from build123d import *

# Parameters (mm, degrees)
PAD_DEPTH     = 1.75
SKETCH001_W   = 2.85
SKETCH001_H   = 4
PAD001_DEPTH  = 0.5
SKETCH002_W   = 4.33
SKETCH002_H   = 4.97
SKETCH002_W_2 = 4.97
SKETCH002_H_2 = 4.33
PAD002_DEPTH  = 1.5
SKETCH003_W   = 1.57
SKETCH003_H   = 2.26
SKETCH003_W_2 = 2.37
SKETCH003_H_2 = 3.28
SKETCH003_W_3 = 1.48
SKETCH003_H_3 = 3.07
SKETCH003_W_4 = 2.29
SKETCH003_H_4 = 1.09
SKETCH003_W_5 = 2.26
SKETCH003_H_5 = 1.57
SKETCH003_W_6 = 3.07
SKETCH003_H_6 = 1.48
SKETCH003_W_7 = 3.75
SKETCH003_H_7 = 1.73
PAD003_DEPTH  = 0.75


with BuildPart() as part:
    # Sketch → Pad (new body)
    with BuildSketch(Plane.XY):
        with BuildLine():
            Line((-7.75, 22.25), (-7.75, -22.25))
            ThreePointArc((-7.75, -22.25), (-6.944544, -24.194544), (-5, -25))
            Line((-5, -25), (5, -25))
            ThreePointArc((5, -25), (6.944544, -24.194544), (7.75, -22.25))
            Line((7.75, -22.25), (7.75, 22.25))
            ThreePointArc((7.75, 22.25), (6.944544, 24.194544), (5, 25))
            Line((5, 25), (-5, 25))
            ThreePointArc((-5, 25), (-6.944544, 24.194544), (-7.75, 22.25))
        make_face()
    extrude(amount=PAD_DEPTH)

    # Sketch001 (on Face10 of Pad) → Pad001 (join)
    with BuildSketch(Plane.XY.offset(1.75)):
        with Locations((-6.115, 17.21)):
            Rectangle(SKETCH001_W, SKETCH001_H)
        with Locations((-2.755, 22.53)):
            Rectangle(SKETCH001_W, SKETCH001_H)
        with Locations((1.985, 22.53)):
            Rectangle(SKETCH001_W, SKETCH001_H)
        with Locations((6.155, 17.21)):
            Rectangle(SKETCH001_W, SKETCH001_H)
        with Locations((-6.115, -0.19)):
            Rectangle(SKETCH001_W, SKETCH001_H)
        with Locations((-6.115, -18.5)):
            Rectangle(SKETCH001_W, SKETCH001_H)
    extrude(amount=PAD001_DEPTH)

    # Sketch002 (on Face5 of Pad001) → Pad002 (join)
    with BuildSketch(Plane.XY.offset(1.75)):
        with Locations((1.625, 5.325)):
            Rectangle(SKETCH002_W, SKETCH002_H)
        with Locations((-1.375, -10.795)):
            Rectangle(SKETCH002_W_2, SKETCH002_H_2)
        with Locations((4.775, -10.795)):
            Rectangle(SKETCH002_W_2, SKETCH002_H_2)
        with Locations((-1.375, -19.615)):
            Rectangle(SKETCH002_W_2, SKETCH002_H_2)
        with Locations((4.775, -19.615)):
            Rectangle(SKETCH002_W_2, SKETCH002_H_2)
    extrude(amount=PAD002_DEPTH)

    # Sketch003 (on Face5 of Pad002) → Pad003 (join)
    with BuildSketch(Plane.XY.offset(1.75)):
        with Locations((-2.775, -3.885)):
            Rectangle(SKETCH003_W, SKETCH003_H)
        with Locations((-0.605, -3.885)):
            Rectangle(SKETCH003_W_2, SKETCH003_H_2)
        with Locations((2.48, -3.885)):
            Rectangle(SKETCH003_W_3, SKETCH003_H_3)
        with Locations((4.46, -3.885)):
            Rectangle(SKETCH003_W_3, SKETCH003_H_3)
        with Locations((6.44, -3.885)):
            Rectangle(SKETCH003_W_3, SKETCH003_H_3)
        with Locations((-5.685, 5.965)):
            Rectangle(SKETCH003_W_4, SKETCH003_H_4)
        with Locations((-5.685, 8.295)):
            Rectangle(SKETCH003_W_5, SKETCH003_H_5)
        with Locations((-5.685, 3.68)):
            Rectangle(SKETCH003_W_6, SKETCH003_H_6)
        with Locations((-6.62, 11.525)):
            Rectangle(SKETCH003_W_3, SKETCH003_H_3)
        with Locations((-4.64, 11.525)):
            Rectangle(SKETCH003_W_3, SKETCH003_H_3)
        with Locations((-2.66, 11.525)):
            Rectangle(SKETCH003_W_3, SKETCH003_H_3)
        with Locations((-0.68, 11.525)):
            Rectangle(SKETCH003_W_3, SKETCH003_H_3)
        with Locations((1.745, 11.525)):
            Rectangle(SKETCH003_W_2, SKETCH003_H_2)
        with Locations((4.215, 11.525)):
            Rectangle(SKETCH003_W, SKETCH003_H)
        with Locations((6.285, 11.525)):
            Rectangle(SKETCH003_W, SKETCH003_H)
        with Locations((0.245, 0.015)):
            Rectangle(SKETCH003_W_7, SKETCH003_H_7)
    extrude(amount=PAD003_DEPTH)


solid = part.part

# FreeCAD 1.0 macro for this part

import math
import FreeCAD as App
import Part
import Sketcher

V = App.Vector
Q = App.Units.Quantity


def add_polygon(sketch, points):
    """Adds a closed chain of lines whose ends are joined by coincident constraints."""
    first, n = sketch.GeometryCount, len(points)
    for a, b in zip(points, points[1:] + points[:1]):
        sketch.addGeometry(Part.LineSegment(App.Vector(*a, 0), App.Vector(*b, 0)), False)
    for i in range(n):
        sketch.addConstraint(Sketcher.Constraint("Coincident", first + i, 2, first + (i + 1) % n, 1))

doc = App.newDocument("Part")
body = doc.addObject("PartDesign::Body", "Body")

# Sketch on XY plane
sketch1 = body.newObject("Sketcher::SketchObject", "Sketch")
sketch1.AttachmentSupport = (doc.getObject("XY_Plane"), [""])
sketch1.MapMode = "FlatFace"
sketch1.addGeometry([
    Part.LineSegment(V(-7.75, 22.25, 0), V(-7.75, -22.25, 0)),  # 0
    Part.ArcOfCircle(Part.Circle(V(-5.000001, -22.250001, 0), V(0, 0, 1), 2.749999), math.radians(179.999975), math.radians(270.000025)),  # 1
    Part.LineSegment(V(-5, -25, 0), V(5, -25, 0)),  # 2
    Part.ArcOfCircle(Part.Circle(V(5.000001, -22.250001, 0), V(0, 0, 1), 2.749999), math.radians(-90.000025), math.radians(0.000025)),  # 3
    Part.LineSegment(V(7.75, -22.25, 0), V(7.75, 22.25, 0)),  # 4
    Part.ArcOfCircle(Part.Circle(V(5.000001, 22.250001, 0), V(0, 0, 1), 2.749999), math.radians(-0.000025), math.radians(90.000025)),  # 5
    Part.LineSegment(V(5, 25, 0), V(-5, 25, 0)),  # 6
    Part.ArcOfCircle(Part.Circle(V(-5.000001, 22.250001, 0), V(0, 0, 1), 2.749999), math.radians(89.999975), math.radians(180.000025)),  # 7
], False)
sketch1.addConstraint([
    Sketcher.Constraint("Tangent", 0, 2, 1, 1),
    Sketcher.Constraint("Tangent", 1, 2, 2, 1),
    Sketcher.Constraint("Tangent", 2, 2, 3, 1),
    Sketcher.Constraint("Tangent", 3, 2, 4, 1),
    Sketcher.Constraint("Tangent", 4, 2, 5, 1),
    Sketcher.Constraint("Tangent", 5, 2, 6, 1),
    Sketcher.Constraint("Tangent", 6, 2, 7, 1),
    Sketcher.Constraint("Tangent", 7, 2, 0, 1),
    Sketcher.Constraint("Vertical", 0),
    Sketcher.Constraint("Horizontal", 2),
    Sketcher.Constraint("Vertical", 4),
    Sketcher.Constraint("Horizontal", 6),
    Sketcher.Constraint("Equal", 1, 3),
    Sketcher.Constraint("Equal", 3, 5),
    Sketcher.Constraint("Equal", 5, 7),
    Sketcher.Constraint("Symmetric", 1, 3, 5, 3, -1, 1),
    Sketcher.Constraint("DistanceX", 2, 1, 2, 2, Q("10 mm")),
    Sketcher.Constraint("Radius", 1, Q("2.749999 mm")),
    Sketcher.Constraint("DistanceY", 0, 2, 0, 1, Q("44.5 mm")),
])
pad1 = body.newObject("PartDesign::Pad", "Pad")
pad1.Profile = sketch1
pad1.Length = 1.75

# Sketch on XY plane
sketch2 = body.newObject("Sketcher::SketchObject", "Sketch001")
sketch2.AttachmentSupport = (doc.getObject("XY_Plane"), [""])
sketch2.MapMode = "FlatFace"
sketch2.AttachmentOffset = App.Placement(V(0, 0, 1.75), App.Rotation())
add_polygon(sketch2, [(-7.54, 19.21), (-7.54, 15.21), (-4.69, 15.21), (-4.69, 19.21)])  # lines 0-3
add_polygon(sketch2, [(-4.18, 24.53), (-4.18, 20.53), (-1.33, 20.53), (-1.33, 24.53)])  # lines 4-7
add_polygon(sketch2, [(0.56, 24.53), (0.56, 20.53), (3.41, 20.53), (3.41, 24.53)])  # lines 8-11
add_polygon(sketch2, [(4.73, 19.21), (4.73, 15.21), (7.58, 15.21), (7.58, 19.21)])  # lines 12-15
add_polygon(sketch2, [(-7.54, 1.81), (-7.54, -2.19), (-4.69, -2.19), (-4.69, 1.81)])  # lines 16-19
add_polygon(sketch2, [(-7.54, -16.5), (-7.54, -20.5), (-4.69, -20.5), (-4.69, -16.5)])  # lines 20-23
sketch2.addConstraint([
    Sketcher.Constraint("Vertical", 0),
    Sketcher.Constraint("Horizontal", 1),
    Sketcher.Constraint("Vertical", 2),
    Sketcher.Constraint("Horizontal", 3),
    Sketcher.Constraint("Vertical", 4),
    Sketcher.Constraint("Horizontal", 5),
    Sketcher.Constraint("Vertical", 6),
    Sketcher.Constraint("Horizontal", 7),
    Sketcher.Constraint("Vertical", 8),
    Sketcher.Constraint("Horizontal", 9),
    Sketcher.Constraint("Vertical", 10),
    Sketcher.Constraint("Horizontal", 11),
    Sketcher.Constraint("Vertical", 12),
    Sketcher.Constraint("Horizontal", 13),
    Sketcher.Constraint("Vertical", 14),
    Sketcher.Constraint("Horizontal", 15),
    Sketcher.Constraint("Vertical", 16),
    Sketcher.Constraint("Horizontal", 17),
    Sketcher.Constraint("Vertical", 18),
    Sketcher.Constraint("Horizontal", 19),
    Sketcher.Constraint("Vertical", 20),
    Sketcher.Constraint("Horizontal", 21),
    Sketcher.Constraint("Vertical", 22),
    Sketcher.Constraint("Horizontal", 23),
    Sketcher.Constraint("Horizontal", 5, 2, 8, 2),
    Sketcher.Constraint("Horizontal", 7, 2, 10, 2),
    Sketcher.Constraint("Horizontal", 1, 2, 12, 2),
    Sketcher.Constraint("Horizontal", 3, 2, 14, 2),
    Sketcher.Constraint("Vertical", 3, 2, 16, 2),
    Sketcher.Constraint("Vertical", 2, 2, 17, 2),
    Sketcher.Constraint("Vertical", 19, 2, 20, 2),
    Sketcher.Constraint("Vertical", 18, 2, 21, 2),
    Sketcher.Constraint("Equal", 3, 5),
    Sketcher.Constraint("Equal", 7, 9),
    Sketcher.Constraint("Equal", 11, 13),
    Sketcher.Constraint("Equal", 2, 4),
    Sketcher.Constraint("Equal", 14, 16),
    Sketcher.Constraint("Equal", 18, 20),
    Sketcher.Constraint("DistanceY", 0, 2, 0, 1, Q("4 mm")),
    Sketcher.Constraint("DistanceX", 1, 1, 1, 2, Q("2.85 mm")),
    Sketcher.Constraint("DistanceY", 20, 2, -1, 1, Q("20.5 mm")),
    Sketcher.Constraint("DistanceX", 2, 2, 9, 2, Q("8.1 mm")),
    Sketcher.Constraint("DistanceY", 16, 2, 0, 2, Q("17.4 mm")),
    Sketcher.Constraint("DistanceX", 0, 2, -1, 1, Q("7.54 mm")),
    Sketcher.Constraint("DistanceY", -1, 1, 0, 2, Q("15.21 mm")),
    Sketcher.Constraint("DistanceX", 4, 2, -1, 1, Q("4.18 mm")),
    Sketcher.Constraint("DistanceY", -1, 1, 4, 2, Q("20.53 mm")),
    Sketcher.Constraint("DistanceX", -1, 1, 12, 2, Q("4.73 mm")),
])
pad2 = body.newObject("PartDesign::Pad", "Pad001")
pad2.Profile = sketch2
pad2.Length = 0.5

# Sketch on XY plane
sketch3 = body.newObject("Sketcher::SketchObject", "Sketch002")
sketch3.AttachmentSupport = (doc.getObject("XY_Plane"), [""])
sketch3.MapMode = "FlatFace"
sketch3.AttachmentOffset = App.Placement(V(0, 0, 1.75), App.Rotation())
add_polygon(sketch3, [(-0.54, 7.81), (-0.54, 2.84), (3.79, 2.84), (3.79, 7.81)])  # lines 0-3
add_polygon(sketch3, [(-3.86, -8.63), (-3.86, -12.96), (1.11, -12.96), (1.11, -8.63)])  # lines 4-7
add_polygon(sketch3, [(2.29, -8.63), (2.29, -12.96), (7.26, -12.96), (7.26, -8.63)])  # lines 8-11
add_polygon(sketch3, [(-3.86, -17.45), (-3.86, -21.78), (1.11, -21.78), (1.11, -17.45)])  # lines 12-15
add_polygon(sketch3, [(2.29, -17.45), (2.29, -21.78), (7.26, -21.78), (7.26, -17.45)])  # lines 16-19
sketch3.addConstraint([
    Sketcher.Constraint("Vertical", 0),
    Sketcher.Constraint("Horizontal", 1),
    Sketcher.Constraint("Vertical", 2),
    Sketcher.Constraint("Horizontal", 3),
    Sketcher.Constraint("Vertical", 4),
    Sketcher.Constraint("Horizontal", 5),
    Sketcher.Constraint("Vertical", 6),
    Sketcher.Constraint("Horizontal", 7),
    Sketcher.Constraint("Vertical", 8),
    Sketcher.Constraint("Horizontal", 9),
    Sketcher.Constraint("Vertical", 10),
    Sketcher.Constraint("Horizontal", 11),
    Sketcher.Constraint("Vertical", 12),
    Sketcher.Constraint("Horizontal", 13),
    Sketcher.Constraint("Vertical", 14),
    Sketcher.Constraint("Horizontal", 15),
    Sketcher.Constraint("Vertical", 16),
    Sketcher.Constraint("Horizontal", 17),
    Sketcher.Constraint("Vertical", 18),
    Sketcher.Constraint("Horizontal", 19),
    Sketcher.Constraint("Horizontal", 5, 2, 8, 2),
    Sketcher.Constraint("Horizontal", 7, 2, 10, 2),
    Sketcher.Constraint("Horizontal", 13, 2, 16, 2),
    Sketcher.Constraint("Horizontal", 15, 2, 18, 2),
    Sketcher.Constraint("Vertical", 7, 2, 12, 2),
    Sketcher.Constraint("Vertical", 6, 2, 13, 2),
    Sketcher.Constraint("Vertical", 11, 2, 16, 2),
    Sketcher.Constraint("Vertical", 10, 2, 17, 2),
    Sketcher.Constraint("Equal", 7, 9),
    Sketcher.Constraint("Equal", 19, 0),
    Sketcher.Constraint("Equal", 3, 4),
    Sketcher.Constraint("Equal", 10, 12),
    Sketcher.Constraint("DistanceX", 1, 1, 1, 2, Q("4.33 mm")),
    Sketcher.Constraint("DistanceX", 5, 1, 5, 2, Q("4.97 mm")),
    Sketcher.Constraint("DistanceY", 4, 2, 0, 2, Q("15.8 mm")),
    Sketcher.Constraint("DistanceX", 8, 2, 1, 2, Q("1.5 mm")),
    Sketcher.Constraint("DistanceX", 0, 2, -1, 1, Q("0.54 mm")),
    Sketcher.Constraint("DistanceY", -1, 1, 0, 2, Q("2.84 mm")),
    Sketcher.Constraint("DistanceX", 4, 2, -1, 1, Q("3.86 mm")),
    Sketcher.Constraint("DistanceY", 12, 2, -1, 1, Q("21.78 mm")),
])
pad3 = body.newObject("PartDesign::Pad", "Pad002")
pad3.Profile = sketch3
pad3.Length = 1.5

# Sketch on XY plane
sketch4 = body.newObject("Sketcher::SketchObject", "Sketch003")
sketch4.AttachmentSupport = (doc.getObject("XY_Plane"), [""])
sketch4.MapMode = "FlatFace"
sketch4.AttachmentOffset = App.Placement(V(0, 0, 1.75), App.Rotation())
add_polygon(sketch4, [(-3.56, -2.755), (-3.56, -5.015), (-1.99, -5.015), (-1.99, -2.755)])  # lines 0-3
add_polygon(sketch4, [(-1.79, -2.245), (-1.79, -5.525), (0.58, -5.525), (0.58, -2.245)])  # lines 4-7
add_polygon(sketch4, [(1.74, -2.35), (1.74, -5.42), (3.22, -5.42), (3.22, -2.35)])  # lines 8-11
add_polygon(sketch4, [(3.72, -2.35), (3.72, -5.42), (5.2, -5.42), (5.2, -2.35)])  # lines 12-15
add_polygon(sketch4, [(5.7, -2.35), (5.7, -5.42), (7.18, -5.42), (7.18, -2.35)])  # lines 16-19
add_polygon(sketch4, [(-6.83, 6.51), (-6.83, 5.42), (-4.54, 5.42), (-4.54, 6.51)])  # lines 20-23
add_polygon(sketch4, [(-6.815, 9.08), (-6.815, 7.51), (-4.555, 7.51), (-4.555, 9.08)])  # lines 24-27
add_polygon(sketch4, [(-7.22, 4.42), (-7.22, 2.94), (-4.15, 2.94), (-4.15, 4.42)])  # lines 28-31
add_polygon(sketch4, [(-7.36, 13.06), (-7.36, 9.99), (-5.88, 9.99), (-5.88, 13.06)])  # lines 32-35
add_polygon(sketch4, [(-5.38, 13.06), (-5.38, 9.99), (-3.9, 9.99), (-3.9, 13.06)])  # lines 36-39
add_polygon(sketch4, [(-3.4, 13.06), (-3.4, 9.99), (-1.92, 9.99), (-1.92, 13.06)])  # lines 40-43
add_polygon(sketch4, [(-1.42, 13.06), (-1.42, 9.99), (0.06, 9.99), (0.06, 13.06)])  # lines 44-47
add_polygon(sketch4, [(0.56, 13.165), (0.56, 9.885), (2.93, 9.885), (2.93, 13.165)])  # lines 48-51
add_polygon(sketch4, [(3.43, 12.655), (3.43, 10.395), (5, 10.395), (5, 12.655)])  # lines 52-55
add_polygon(sketch4, [(5.5, 12.655), (5.5, 10.395), (7.07, 10.395), (7.07, 12.655)])  # lines 56-59
add_polygon(sketch4, [(-1.63, 0.88), (-1.63, -0.85), (2.12, -0.85), (2.12, 0.88)])  # lines 60-63
sketch4.addConstraint([
    Sketcher.Constraint("Vertical", 0),
    Sketcher.Constraint("Horizontal", 1),
    Sketcher.Constraint("Vertical", 2),
    Sketcher.Constraint("Horizontal", 3),
    Sketcher.Constraint("Vertical", 4),
    Sketcher.Constraint("Horizontal", 5),
    Sketcher.Constraint("Vertical", 6),
    Sketcher.Constraint("Horizontal", 7),
    Sketcher.Constraint("Vertical", 8),
    Sketcher.Constraint("Horizontal", 9),
    Sketcher.Constraint("Vertical", 10),
    Sketcher.Constraint("Horizontal", 11),
    Sketcher.Constraint("Vertical", 12),
    Sketcher.Constraint("Horizontal", 13),
    Sketcher.Constraint("Vertical", 14),
    Sketcher.Constraint("Horizontal", 15),
    Sketcher.Constraint("Vertical", 16),
    Sketcher.Constraint("Horizontal", 17),
    Sketcher.Constraint("Vertical", 18),
    Sketcher.Constraint("Horizontal", 19),
    Sketcher.Constraint("Vertical", 20),
    Sketcher.Constraint("Horizontal", 21),
    Sketcher.Constraint("Vertical", 22),
    Sketcher.Constraint("Horizontal", 23),
    Sketcher.Constraint("Vertical", 24),
    Sketcher.Constraint("Horizontal", 25),
    Sketcher.Constraint("Vertical", 26),
    Sketcher.Constraint("Horizontal", 27),
    Sketcher.Constraint("Vertical", 28),
    Sketcher.Constraint("Horizontal", 29),
    Sketcher.Constraint("Vertical", 30),
    Sketcher.Constraint("Horizontal", 31),
    Sketcher.Constraint("Vertical", 32),
    Sketcher.Constraint("Horizontal", 33),
    Sketcher.Constraint("Vertical", 34),
    Sketcher.Constraint("Horizontal", 35),
    Sketcher.Constraint("Vertical", 36),
    Sketcher.Constraint("Horizontal", 37),
    Sketcher.Constraint("Vertical", 38),
    Sketcher.Constraint("Horizontal", 39),
    Sketcher.Constraint("Vertical", 40),
    Sketcher.Constraint("Horizontal", 41),
    Sketcher.Constraint("Vertical", 42),
    Sketcher.Constraint("Horizontal", 43),
    Sketcher.Constraint("Vertical", 44),
    Sketcher.Constraint("Horizontal", 45),
    Sketcher.Constraint("Vertical", 46),
    Sketcher.Constraint("Horizontal", 47),
    Sketcher.Constraint("Vertical", 48),
    Sketcher.Constraint("Horizontal", 49),
    Sketcher.Constraint("Vertical", 50),
    Sketcher.Constraint("Horizontal", 51),
    Sketcher.Constraint("Vertical", 52),
    Sketcher.Constraint("Horizontal", 53),
    Sketcher.Constraint("Vertical", 54),
    Sketcher.Constraint("Horizontal", 55),
    Sketcher.Constraint("Vertical", 56),
    Sketcher.Constraint("Horizontal", 57),
    Sketcher.Constraint("Vertical", 58),
    Sketcher.Constraint("Horizontal", 59),
    Sketcher.Constraint("Vertical", 60),
    Sketcher.Constraint("Horizontal", 61),
    Sketcher.Constraint("Vertical", 62),
    Sketcher.Constraint("Horizontal", 63),
    Sketcher.Constraint("Horizontal", 9, 2, 12, 2),
    Sketcher.Constraint("Horizontal", 11, 2, 14, 2),
    Sketcher.Constraint("Horizontal", 13, 2, 16, 2),
    Sketcher.Constraint("Horizontal", 15, 2, 18, 2),
    Sketcher.Constraint("Horizontal", 33, 2, 36, 2),
    Sketcher.Constraint("Horizontal", 35, 2, 38, 2),
    Sketcher.Constraint("Horizontal", 37, 2, 40, 2),
    Sketcher.Constraint("Horizontal", 39, 2, 42, 2),
    Sketcher.Constraint("Horizontal", 41, 2, 44, 2),
    Sketcher.Constraint("Horizontal", 43, 2, 46, 2),
    Sketcher.Constraint("Horizontal", 53, 2, 56, 2),
    Sketcher.Constraint("Horizontal", 55, 2, 58, 2),
    Sketcher.Constraint("Equal", 11, 13),
    Sketcher.Constraint("Equal", 15, 17),
    Sketcher.Constraint("Equal", 19, 33),
    Sketcher.Constraint("Equal", 35, 37),
    Sketcher.Constraint("Equal", 39, 41),
    Sketcher.Constraint("Equal", 43, 45),
    Sketcher.Constraint("Equal", 7, 49),
    Sketcher.Constraint("Equal", 3, 53),
    Sketcher.Constraint("Equal", 55, 57),
    Sketcher.Constraint("Equal", 27, 0),
    Sketcher.Constraint("Equal", 31, 8),
    Sketcher.Constraint("Equal", 59, 24),
    Sketcher.Constraint("Equal", 47, 28),
    Sketcher.Constraint("Equal", 18, 32),
    Sketcher.Constraint("Equal", 6, 48),
    Sketcher.Constraint("Equal", 2, 52),
    Sketcher.Constraint("DistanceX", -1, 1, 53, 2, Q("5 mm")),
    Sketcher.Constraint("DistanceX", 1, 1, 1, 2, Q("1.57 mm")),
    Sketcher.Constraint("DistanceX", 5, 1, 5, 2, Q("2.37 mm")),
    Sketcher.Constraint("DistanceX", 9, 1, 9, 2, Q("1.48 mm")),
    Sketcher.Constraint("DistanceX", 21, 1, 21, 2, Q("2.29 mm")),
    Sketcher.Constraint("DistanceX", 25, 1, 25, 2, Q("2.26 mm")),
    Sketcher.Constraint("DistanceX", 29, 1, 29, 2, Q("3.07 mm")),
    Sketcher.Constraint("DistanceX", 61, 1, 61, 2, Q("3.75 mm")),
    Sketcher.Constraint("DistanceY", 4, 2, 4, 1, Q("3.28 mm")),
    Sketcher.Constraint("DistanceY", 20, 2, 20, 1, Q("1.09 mm")),
    Sketcher.Constraint("DistanceY", 60, 2, 60, 1, Q("1.73 mm")),
    Sketcher.Constraint("DistanceX", -1, 1, 13, 2, Q("5.2 mm")),
    Sketcher.Constraint("DistanceX", -1, 1, 16, 2, Q("5.7 mm")),
    Sketcher.Constraint("DistanceX", 37, 2, -1, 1, Q("3.9 mm")),
    Sketcher.Constraint("DistanceX", 40, 2, -1, 1, Q("3.4 mm")),
    Sketcher.Constraint("DistanceX", -1, 1, 56, 2, Q("5.5 mm")),
    Sketcher.Constraint("DistanceX", 0, 2, -1, 1, Q("3.56 mm")),
    Sketcher.Constraint("DistanceX", 4, 2, -1, 1, Q("1.79 mm")),
    Sketcher.Constraint("DistanceX", -1, 1, 8, 2, Q("1.74 mm")),
    Sketcher.Constraint("DistanceY", 8, 2, -1, 1, Q("5.42 mm")),
    Sketcher.Constraint("DistanceX", 20, 2, -1, 1, Q("6.83 mm")),
    Sketcher.Constraint("DistanceY", -1, 1, 20, 2, Q("5.42 mm")),
    Sketcher.Constraint("DistanceY", -1, 1, 24, 2, Q("7.51 mm")),
    Sketcher.Constraint("DistanceX", 28, 2, -1, 1, Q("7.22 mm")),
    Sketcher.Constraint("DistanceY", -1, 1, 28, 2, Q("2.94 mm")),
    Sketcher.Constraint("DistanceX", 32, 2, -1, 1, Q("7.36 mm")),
    Sketcher.Constraint("DistanceY", -1, 1, 32, 2, Q("9.99 mm")),
    Sketcher.Constraint("DistanceX", 44, 2, -1, 1, Q("1.42 mm")),
    Sketcher.Constraint("DistanceX", -1, 1, 48, 2, Q("0.56 mm")),
    Sketcher.Constraint("DistanceX", 60, 2, -1, 1, Q("1.63 mm")),
    Sketcher.Constraint("DistanceY", 60, 2, -1, 1, Q("0.85 mm")),
    Sketcher.Constraint("DistanceY", 0, 2, -1, 1, Q("5.015 mm")),
    Sketcher.Constraint("DistanceY", 4, 2, -1, 1, Q("5.525 mm")),
    Sketcher.Constraint("DistanceX", 24, 2, -1, 1, Q("6.815 mm")),
    Sketcher.Constraint("DistanceY", -1, 1, 48, 2, Q("9.885 mm")),
    Sketcher.Constraint("DistanceY", -1, 1, 52, 2, Q("10.395 mm")),
])
pad4 = body.newObject("PartDesign::Pad", "Pad003")
pad4.Profile = sketch4
pad4.Length = 0.75

doc.recompute()
